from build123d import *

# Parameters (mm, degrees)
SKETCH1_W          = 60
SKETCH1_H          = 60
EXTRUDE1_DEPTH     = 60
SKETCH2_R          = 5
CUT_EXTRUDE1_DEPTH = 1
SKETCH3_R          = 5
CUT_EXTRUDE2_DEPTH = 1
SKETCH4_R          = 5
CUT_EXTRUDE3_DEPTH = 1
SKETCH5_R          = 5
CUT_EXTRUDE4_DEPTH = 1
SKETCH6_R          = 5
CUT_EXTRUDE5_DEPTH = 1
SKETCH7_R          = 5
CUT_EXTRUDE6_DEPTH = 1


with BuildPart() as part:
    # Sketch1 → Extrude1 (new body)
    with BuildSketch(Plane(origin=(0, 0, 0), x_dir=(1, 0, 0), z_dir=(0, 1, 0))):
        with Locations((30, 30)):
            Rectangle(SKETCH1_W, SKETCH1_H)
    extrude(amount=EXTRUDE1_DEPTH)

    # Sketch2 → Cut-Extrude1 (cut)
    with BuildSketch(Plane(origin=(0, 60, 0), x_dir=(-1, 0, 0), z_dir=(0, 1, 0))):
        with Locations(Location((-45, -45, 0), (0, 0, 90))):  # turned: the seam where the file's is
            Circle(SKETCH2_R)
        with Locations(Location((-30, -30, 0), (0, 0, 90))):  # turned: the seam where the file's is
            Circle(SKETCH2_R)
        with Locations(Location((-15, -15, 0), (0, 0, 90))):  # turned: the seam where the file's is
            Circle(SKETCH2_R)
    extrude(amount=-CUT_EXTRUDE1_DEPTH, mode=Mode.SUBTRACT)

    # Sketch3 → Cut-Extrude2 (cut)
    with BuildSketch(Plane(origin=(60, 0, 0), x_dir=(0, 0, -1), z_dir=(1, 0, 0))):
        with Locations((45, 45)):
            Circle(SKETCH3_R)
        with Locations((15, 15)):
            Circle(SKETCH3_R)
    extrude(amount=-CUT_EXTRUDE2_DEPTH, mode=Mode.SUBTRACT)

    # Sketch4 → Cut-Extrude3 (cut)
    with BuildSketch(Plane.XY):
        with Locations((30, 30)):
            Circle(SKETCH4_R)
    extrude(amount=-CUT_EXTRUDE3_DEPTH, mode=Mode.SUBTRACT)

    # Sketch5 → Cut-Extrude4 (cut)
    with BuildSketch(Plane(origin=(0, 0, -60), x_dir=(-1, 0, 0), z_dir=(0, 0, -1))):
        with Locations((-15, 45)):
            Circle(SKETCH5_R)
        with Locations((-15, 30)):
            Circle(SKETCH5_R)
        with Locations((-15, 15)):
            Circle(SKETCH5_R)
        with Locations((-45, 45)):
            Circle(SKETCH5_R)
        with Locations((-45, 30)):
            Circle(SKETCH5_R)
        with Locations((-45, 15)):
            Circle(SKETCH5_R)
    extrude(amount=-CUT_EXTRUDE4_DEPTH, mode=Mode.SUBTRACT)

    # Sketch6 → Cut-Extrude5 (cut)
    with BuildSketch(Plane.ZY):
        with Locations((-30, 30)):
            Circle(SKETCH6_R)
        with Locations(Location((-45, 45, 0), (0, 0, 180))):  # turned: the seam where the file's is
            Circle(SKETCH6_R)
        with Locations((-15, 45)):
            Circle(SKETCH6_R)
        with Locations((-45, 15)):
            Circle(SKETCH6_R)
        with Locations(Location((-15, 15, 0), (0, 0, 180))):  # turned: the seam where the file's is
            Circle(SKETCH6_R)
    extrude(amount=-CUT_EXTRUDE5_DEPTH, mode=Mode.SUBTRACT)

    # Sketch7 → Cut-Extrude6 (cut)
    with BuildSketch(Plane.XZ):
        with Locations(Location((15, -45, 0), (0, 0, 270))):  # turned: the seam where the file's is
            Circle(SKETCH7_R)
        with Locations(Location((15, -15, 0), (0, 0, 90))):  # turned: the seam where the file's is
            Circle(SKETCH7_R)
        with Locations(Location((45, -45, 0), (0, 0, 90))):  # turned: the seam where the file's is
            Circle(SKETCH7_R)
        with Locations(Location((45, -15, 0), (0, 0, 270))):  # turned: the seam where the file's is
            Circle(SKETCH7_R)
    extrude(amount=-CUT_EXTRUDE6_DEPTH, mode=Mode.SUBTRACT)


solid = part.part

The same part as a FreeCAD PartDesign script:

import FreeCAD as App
import Part
import Sketcher
from FreeCAD import Vector


def add_polygon(sketch, points):
    """Adds a closed chain of lines whose ends are joined by coincident constraints."""
    first, n = sketch.GeometryCount, len(points)
    for a, b in zip(points, points[1:] + points[:1]):
        sketch.addGeometry(Part.LineSegment(App.Vector(*a, 0), App.Vector(*b, 0)), False)
    for i in range(n):
        sketch.addConstraint(Sketcher.Constraint("Coincident", first + i, 2, first + (i + 1) % n, 1))

doc = App.newDocument("Part")
body = doc.addObject("PartDesign::Body", "Body")

# Sketch on XZ plane
sketch1 = body.newObject("Sketcher::SketchObject", "Sketch")
sketch1.AttachmentSupport = (doc.getObject("XZ_Plane"), [""])
sketch1.MapMode = "FlatFace"
add_polygon(sketch1, [(0, -60), (0, 0), (60, 0), (60, -60)])  # lines 0-3
sketch1.addConstraint([
    Sketcher.Constraint("Vertical", 0),
    Sketcher.Constraint("Horizontal", 1),
    Sketcher.Constraint("Vertical", 2),
    Sketcher.Constraint("Horizontal", 3),
    Sketcher.Constraint("Coincident", 0, 2, -1, 1),
    Sketcher.Constraint("Equal", 3, 0),
    Sketcher.Constraint("DistanceX", 1, 1, 1, 2, 60.0),
])
pad1 = body.newObject("PartDesign::Pad", "Pad")
pad1.Profile = sketch1
pad1.Length = 60
pad1.Reversed = True

# Sketch on XZ plane
sketch2 = body.newObject("Sketcher::SketchObject", "Sketch001")
sketch2.AttachmentSupport = (doc.getObject("XZ_Plane"), [""])
sketch2.MapMode = "FlatFace"
sketch2.AttachmentOffset = App.Placement(Vector(0, 0, -60), App.Rotation())
sketch2.addGeometry([
    Part.Circle(Vector(45, -45, 0), Vector(0, 0, 1), 5),
    Part.Circle(Vector(30, -30, 0), Vector(0, 0, 1), 5),
    Part.Circle(Vector(15, -15, 0), Vector(0, 0, 1), 5),
], False)
sketch2.addConstraint([
    Sketcher.Constraint("Equal", 0, 1),
    Sketcher.Constraint("Equal", 1, 2),
    Sketcher.Constraint("Diameter", 0, 10.0),
    Sketcher.Constraint("DistanceX", -1, 1, 0, 3, 45.0),
    Sketcher.Constraint("DistanceY", 0, 3, -1, 1, 45.0),
    Sketcher.Constraint("DistanceX", -1, 1, 1, 3, 30.0),
    Sketcher.Constraint("DistanceY", 1, 3, -1, 1, 30.0),
    Sketcher.Constraint("DistanceX", -1, 1, 2, 3, 15.0),
    Sketcher.Constraint("DistanceY", 2, 3, -1, 1, 15.0),
])
pocket1 = body.newObject("PartDesign::Pocket", "Pocket")
pocket1.Profile = sketch2
pocket1.Length = 1
pocket1.Reversed = True

# Sketch on YZ plane
sketch3 = body.newObject("Sketcher::SketchObject", "Sketch002")
sketch3.AttachmentSupport = (doc.getObject("YZ_Plane"), [""])
sketch3.MapMode = "FlatFace"
sketch3.AttachmentOffset = App.Placement(Vector(0, 0, 60), App.Rotation())
sketch3.addGeometry([
    Part.Circle(Vector(45, -45, 0), Vector(0, 0, 1), 5),
    Part.Circle(Vector(15, -15, 0), Vector(0, 0, 1), 5),
], False)
sketch3.addConstraint([
    Sketcher.Constraint("Equal", 0, 1),
    Sketcher.Constraint("Diameter", 0, 10.0),
    Sketcher.Constraint("DistanceX", -1, 1, 0, 3, 45.0),
    Sketcher.Constraint("DistanceY", 0, 3, -1, 1, 45.0),
    Sketcher.Constraint("DistanceX", -1, 1, 1, 3, 15.0),
    Sketcher.Constraint("DistanceY", 1, 3, -1, 1, 15.0),
])
pocket2 = body.newObject("PartDesign::Pocket", "Pocket001")
pocket2.Profile = sketch3
pocket2.Length = 1

# Sketch on XY plane
sketch4 = body.newObject("Sketcher::SketchObject", "Sketch003")
sketch4.AttachmentSupport = (doc.getObject("XY_Plane"), [""])
sketch4.MapMode = "FlatFace"
sketch4.addGeometry(Part.Circle(Vector(30, 30, 0), Vector(0, 0, 1), 5), False)
sketch4.addConstraint([
    Sketcher.Constraint("Diameter", 0, 10.0),
    Sketcher.Constraint("DistanceX", -1, 1, 0, 3, 30.0),
    Sketcher.Constraint("DistanceY", -1, 1, 0, 3, 30.0),
])
pocket3 = body.newObject("PartDesign::Pocket", "Pocket002")
pocket3.Profile = sketch4
pocket3.Length = 1

# Sketch on XY plane
sketch5 = body.newObject("Sketcher::SketchObject", "Sketch004")
sketch5.AttachmentSupport = (doc.getObject("XY_Plane"), [""])
sketch5.MapMode = "FlatFace"
sketch5.AttachmentOffset = App.Placement(Vector(0, 0, -60), App.Rotation())
sketch5.addGeometry([
    Part.Circle(Vector(15, 45, 0), Vector(0, 0, 1), 5),  # 0
    Part.Circle(Vector(15, 30, 0), Vector(0, 0, 1), 5),  # 1
    Part.Circle(Vector(15, 15, 0), Vector(0, 0, 1), 5),  # 2
    Part.Circle(Vector(45, 45, 0), Vector(0, 0, 1), 5),  # 3
    Part.Circle(Vector(45, 30, 0), Vector(0, 0, 1), 5),  # 4
    Part.Circle(Vector(45, 15, 0), Vector(0, 0, 1), 5),  # 5
], False)
sketch5.addConstraint([
    Sketcher.Constraint("Equal", 0, 1),
    Sketcher.Constraint("Equal", 1, 2),
    Sketcher.Constraint("Equal", 2, 3),
    Sketcher.Constraint("Equal", 3, 4),
    Sketcher.Constraint("Equal", 4, 5),
    Sketcher.Constraint("Horizontal", 0, 3, 3, 3),
    Sketcher.Constraint("Horizontal", 1, 3, 4, 3),
    Sketcher.Constraint("Horizontal", 2, 3, 5, 3),
    Sketcher.Constraint("Vertical", 0, 3, 1, 3),
    Sketcher.Constraint("Vertical", 1, 3, 2, 3),
    Sketcher.Constraint("Vertical", 3, 3, 4, 3),
    Sketcher.Constraint("Vertical", 4, 3, 5, 3),
    Sketcher.Constraint("Diameter", 0, 10.0),
    Sketcher.Constraint("DistanceX", -1, 1, 0, 3, 15.0),
    Sketcher.Constraint("DistanceY", -1, 1, 0, 3, 45.0),
    Sketcher.Constraint("DistanceY", -1, 1, 1, 3, 30.0),
    Sketcher.Constraint("DistanceY", -1, 1, 2, 3, 15.0),
    Sketcher.Constraint("DistanceX", -1, 1, 3, 3, 45.0),
])
pocket4 = body.newObject("PartDesign::Pocket", "Pocket003")
pocket4.Profile = sketch5
pocket4.Length = 1
pocket4.Reversed = True

# Sketch on YZ plane
sketch6 = body.newObject("Sketcher::SketchObject", "Sketch005")
sketch6.AttachmentSupport = (doc.getObject("YZ_Plane"), [""])
sketch6.MapMode = "FlatFace"
sketch6.addGeometry([
    Part.Circle(Vector(30, -30, 0), Vector(0, 0, 1), 5),  # 0
    Part.Circle(Vector(45, -45, 0), Vector(0, 0, 1), 5),  # 1
    Part.Circle(Vector(45, -15, 0), Vector(0, 0, 1), 5),  # 2
    Part.Circle(Vector(15, -45, 0), Vector(0, 0, 1), 5),  # 3
    Part.Circle(Vector(15, -15, 0), Vector(0, 0, 1), 5),  # 4
], False)
sketch6.addConstraint([
    Sketcher.Constraint("Equal", 0, 1),
    Sketcher.Constraint("Equal", 1, 2),
    Sketcher.Constraint("Equal", 2, 3),
    Sketcher.Constraint("Equal", 3, 4),
    Sketcher.Constraint("Horizontal", 1, 3, 3, 3),
    Sketcher.Constraint("Horizontal", 2, 3, 4, 3),
    Sketcher.Constraint("Vertical", 1, 3, 2, 3),
    Sketcher.Constraint("Vertical", 3, 3, 4, 3),
    Sketcher.Constraint("Diameter", 0, 10.0),
    Sketcher.Constraint("DistanceX", -1, 1, 0, 3, 30.0),
    Sketcher.Constraint("DistanceY", 0, 3, -1, 1, 30.0),
    Sketcher.Constraint("DistanceX", -1, 1, 1, 3, 45.0),
    Sketcher.Constraint("DistanceY", 1, 3, -1, 1, 45.0),
    Sketcher.Constraint("DistanceY", 2, 3, -1, 1, 15.0),
    Sketcher.Constraint("DistanceX", -1, 1, 3, 3, 15.0),
])
pocket5 = body.newObject("PartDesign::Pocket", "Pocket004")
pocket5.Profile = sketch6
pocket5.Length = 1
pocket5.Reversed = True

# Sketch on XZ plane
sketch7 = body.newObject("Sketcher::SketchObject", "Sketch006")
sketch7.AttachmentSupport = (doc.getObject("XZ_Plane"), [""])
sketch7.MapMode = "FlatFace"
sketch7.addGeometry([
    Part.Circle(Vector(15, -45, 0), Vector(0, 0, 1), 5),
    Part.Circle(Vector(15, -15, 0), Vector(0, 0, 1), 5),
    Part.Circle(Vector(45, -45, 0), Vector(0, 0, 1), 5),
    Part.Circle(Vector(45, -15, 0), Vector(0, 0, 1), 5),
], False)
sketch7.addConstraint([
    Sketcher.Constraint("Equal", 0, 1),
    Sketcher.Constraint("Equal", 1, 2),
    Sketcher.Constraint("Equal", 2, 3),
    Sketcher.Constraint("Horizontal", 0, 3, 2, 3),
    Sketcher.Constraint("Horizontal", 1, 3, 3, 3),
    Sketcher.Constraint("Vertical", 0, 3, 1, 3),
    Sketcher.Constraint("Vertical", 2, 3, 3, 3),
    Sketcher.Constraint("Diameter", 0, 10.0),
    Sketcher.Constraint("DistanceX", -1, 1, 0, 3, 15.0),
    Sketcher.Constraint("DistanceY", 0, 3, -1, 1, 45.0),
    Sketcher.Constraint("DistanceY", 1, 3, -1, 1, 15.0),
    Sketcher.Constraint("DistanceX", -1, 1, 2, 3, 45.0),
])
pocket6 = body.newObject("PartDesign::Pocket", "Pocket005")
pocket6.Profile = sketch7
pocket6.Length = 1

doc.recompute()
